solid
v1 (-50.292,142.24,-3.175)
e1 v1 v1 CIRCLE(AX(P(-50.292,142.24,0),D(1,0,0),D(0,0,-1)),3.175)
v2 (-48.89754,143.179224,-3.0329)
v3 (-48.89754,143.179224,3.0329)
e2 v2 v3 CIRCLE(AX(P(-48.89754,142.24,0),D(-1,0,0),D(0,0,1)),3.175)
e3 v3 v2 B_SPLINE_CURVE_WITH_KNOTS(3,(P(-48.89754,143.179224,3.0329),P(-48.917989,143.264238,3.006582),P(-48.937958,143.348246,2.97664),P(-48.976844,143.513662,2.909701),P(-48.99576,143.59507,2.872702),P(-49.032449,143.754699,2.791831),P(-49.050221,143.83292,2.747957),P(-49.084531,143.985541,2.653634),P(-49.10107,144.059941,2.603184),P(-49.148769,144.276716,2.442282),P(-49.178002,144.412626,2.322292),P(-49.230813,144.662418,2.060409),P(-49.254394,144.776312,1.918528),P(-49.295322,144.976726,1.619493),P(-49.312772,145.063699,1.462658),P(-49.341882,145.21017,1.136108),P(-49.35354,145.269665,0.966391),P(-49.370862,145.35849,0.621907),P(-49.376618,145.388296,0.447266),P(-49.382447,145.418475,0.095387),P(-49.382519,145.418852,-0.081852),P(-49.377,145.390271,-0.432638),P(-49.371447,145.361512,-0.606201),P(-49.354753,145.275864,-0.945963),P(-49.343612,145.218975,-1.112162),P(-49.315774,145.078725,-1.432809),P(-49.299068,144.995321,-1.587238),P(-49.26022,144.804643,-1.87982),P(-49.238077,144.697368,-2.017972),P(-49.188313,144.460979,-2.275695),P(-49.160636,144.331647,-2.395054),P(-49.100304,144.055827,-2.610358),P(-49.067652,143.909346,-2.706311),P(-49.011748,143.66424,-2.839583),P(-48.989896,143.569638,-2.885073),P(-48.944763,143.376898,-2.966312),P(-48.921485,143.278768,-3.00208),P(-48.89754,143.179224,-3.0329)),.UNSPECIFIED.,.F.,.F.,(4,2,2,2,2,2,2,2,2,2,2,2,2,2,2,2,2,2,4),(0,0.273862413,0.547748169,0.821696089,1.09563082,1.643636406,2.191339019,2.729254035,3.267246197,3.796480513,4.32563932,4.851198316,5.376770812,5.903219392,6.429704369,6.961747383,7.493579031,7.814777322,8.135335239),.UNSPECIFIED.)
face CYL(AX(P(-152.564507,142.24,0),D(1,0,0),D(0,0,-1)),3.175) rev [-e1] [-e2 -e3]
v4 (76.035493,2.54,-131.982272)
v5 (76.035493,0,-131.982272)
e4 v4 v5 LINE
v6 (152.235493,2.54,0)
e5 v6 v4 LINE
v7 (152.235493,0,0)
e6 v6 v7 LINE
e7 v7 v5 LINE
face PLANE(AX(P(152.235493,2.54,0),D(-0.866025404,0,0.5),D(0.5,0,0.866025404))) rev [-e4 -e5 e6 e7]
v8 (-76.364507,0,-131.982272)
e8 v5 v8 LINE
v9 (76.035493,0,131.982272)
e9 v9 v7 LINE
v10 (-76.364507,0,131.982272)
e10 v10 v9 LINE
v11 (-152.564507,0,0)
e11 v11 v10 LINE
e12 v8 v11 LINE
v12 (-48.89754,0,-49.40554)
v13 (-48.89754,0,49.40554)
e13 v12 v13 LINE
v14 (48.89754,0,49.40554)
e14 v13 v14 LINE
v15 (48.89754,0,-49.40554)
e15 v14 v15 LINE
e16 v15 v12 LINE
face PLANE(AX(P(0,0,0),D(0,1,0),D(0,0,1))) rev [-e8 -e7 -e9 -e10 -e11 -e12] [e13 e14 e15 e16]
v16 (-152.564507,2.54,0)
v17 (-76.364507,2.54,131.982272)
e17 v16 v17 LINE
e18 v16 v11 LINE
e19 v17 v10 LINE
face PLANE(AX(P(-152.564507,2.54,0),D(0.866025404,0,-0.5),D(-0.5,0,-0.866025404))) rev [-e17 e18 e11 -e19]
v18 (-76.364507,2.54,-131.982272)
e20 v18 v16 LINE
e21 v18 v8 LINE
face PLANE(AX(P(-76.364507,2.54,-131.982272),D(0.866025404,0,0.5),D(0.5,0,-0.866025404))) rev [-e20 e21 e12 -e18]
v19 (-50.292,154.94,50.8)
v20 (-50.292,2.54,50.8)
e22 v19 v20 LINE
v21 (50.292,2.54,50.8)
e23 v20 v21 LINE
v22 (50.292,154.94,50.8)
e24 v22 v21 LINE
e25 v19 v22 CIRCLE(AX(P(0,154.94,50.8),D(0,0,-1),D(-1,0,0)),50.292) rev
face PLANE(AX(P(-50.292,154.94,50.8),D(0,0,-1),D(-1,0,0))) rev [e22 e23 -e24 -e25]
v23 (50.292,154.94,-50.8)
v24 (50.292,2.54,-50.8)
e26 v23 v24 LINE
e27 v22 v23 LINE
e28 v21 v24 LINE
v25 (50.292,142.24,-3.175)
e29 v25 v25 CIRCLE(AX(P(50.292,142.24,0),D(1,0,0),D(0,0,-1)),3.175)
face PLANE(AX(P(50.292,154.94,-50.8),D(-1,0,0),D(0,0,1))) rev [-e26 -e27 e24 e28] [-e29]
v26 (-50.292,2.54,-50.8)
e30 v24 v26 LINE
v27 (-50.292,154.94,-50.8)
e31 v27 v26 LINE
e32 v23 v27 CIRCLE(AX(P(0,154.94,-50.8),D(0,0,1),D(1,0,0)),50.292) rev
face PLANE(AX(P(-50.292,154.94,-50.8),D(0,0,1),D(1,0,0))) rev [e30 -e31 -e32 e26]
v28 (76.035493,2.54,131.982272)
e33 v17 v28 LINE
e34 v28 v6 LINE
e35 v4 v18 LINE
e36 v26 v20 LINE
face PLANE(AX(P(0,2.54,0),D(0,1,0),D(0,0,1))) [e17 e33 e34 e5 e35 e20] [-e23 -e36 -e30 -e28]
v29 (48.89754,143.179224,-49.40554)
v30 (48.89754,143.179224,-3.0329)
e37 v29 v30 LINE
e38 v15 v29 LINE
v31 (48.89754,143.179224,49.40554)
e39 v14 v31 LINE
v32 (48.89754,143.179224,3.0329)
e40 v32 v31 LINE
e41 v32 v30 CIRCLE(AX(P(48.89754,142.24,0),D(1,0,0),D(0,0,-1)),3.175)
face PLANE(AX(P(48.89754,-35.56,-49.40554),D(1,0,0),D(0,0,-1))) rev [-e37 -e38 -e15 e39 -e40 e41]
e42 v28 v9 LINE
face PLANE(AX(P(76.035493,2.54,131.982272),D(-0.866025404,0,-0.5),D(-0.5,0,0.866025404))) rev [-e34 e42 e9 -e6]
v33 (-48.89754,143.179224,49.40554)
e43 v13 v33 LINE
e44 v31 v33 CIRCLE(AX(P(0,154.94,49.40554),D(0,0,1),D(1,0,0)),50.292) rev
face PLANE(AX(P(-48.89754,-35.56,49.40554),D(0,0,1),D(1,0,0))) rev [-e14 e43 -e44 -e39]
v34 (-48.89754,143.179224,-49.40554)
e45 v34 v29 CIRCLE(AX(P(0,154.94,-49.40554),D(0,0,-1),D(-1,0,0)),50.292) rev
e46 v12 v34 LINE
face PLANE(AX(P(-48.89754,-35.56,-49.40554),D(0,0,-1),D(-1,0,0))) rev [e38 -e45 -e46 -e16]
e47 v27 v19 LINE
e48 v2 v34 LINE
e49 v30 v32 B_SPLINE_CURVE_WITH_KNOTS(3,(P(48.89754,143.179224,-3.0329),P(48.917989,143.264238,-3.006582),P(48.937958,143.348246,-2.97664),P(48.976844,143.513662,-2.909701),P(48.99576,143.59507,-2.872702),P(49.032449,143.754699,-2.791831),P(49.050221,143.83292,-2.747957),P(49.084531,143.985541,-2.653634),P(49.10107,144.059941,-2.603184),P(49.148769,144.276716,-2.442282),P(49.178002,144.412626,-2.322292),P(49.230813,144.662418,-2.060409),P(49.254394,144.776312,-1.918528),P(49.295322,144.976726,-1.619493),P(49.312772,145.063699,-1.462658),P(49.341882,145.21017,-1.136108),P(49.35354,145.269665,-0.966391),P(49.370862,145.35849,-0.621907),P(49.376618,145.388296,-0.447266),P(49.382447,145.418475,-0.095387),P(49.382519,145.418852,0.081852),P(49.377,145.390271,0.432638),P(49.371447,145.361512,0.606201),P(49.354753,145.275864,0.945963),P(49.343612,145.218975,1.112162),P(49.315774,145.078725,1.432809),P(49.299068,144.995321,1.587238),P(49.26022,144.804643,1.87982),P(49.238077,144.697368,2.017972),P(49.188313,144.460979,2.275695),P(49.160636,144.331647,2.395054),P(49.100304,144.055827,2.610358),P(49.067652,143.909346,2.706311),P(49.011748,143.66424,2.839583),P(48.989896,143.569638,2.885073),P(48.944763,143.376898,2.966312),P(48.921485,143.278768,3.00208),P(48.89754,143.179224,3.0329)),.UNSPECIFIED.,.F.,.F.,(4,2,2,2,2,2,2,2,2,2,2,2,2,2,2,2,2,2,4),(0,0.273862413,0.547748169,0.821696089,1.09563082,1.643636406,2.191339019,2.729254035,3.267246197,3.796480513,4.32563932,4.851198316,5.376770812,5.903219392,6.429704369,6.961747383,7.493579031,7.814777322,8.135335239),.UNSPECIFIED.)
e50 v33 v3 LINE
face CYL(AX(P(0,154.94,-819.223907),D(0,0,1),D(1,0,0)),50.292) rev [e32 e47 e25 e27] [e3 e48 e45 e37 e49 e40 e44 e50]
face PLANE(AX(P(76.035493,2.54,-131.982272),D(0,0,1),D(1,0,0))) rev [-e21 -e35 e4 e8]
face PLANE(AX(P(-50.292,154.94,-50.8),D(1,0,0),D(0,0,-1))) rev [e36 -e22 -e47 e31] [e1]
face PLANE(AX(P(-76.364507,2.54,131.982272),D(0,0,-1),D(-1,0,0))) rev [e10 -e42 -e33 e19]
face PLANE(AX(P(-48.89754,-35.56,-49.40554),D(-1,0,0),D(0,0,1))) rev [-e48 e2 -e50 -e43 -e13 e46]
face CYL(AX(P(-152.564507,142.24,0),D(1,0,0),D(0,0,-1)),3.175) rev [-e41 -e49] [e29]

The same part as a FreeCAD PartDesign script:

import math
import FreeCAD as App
import Part
import Sketcher
from FreeCAD import Vector
Q = App.Units.Quantity

doc = App.newDocument("Part")
body = doc.addObject("PartDesign::Body", "Body")

# Sketch on XZ plane
sketch1 = doc.addObject("Sketcher::SketchObject", "Sketch")
body.addObject(sketch1)
sketch1.AttachmentSupport = (doc.XZ_Plane, [""])
sketch1.MapMode = "FlatFace"
sketch1.addGeometry([
    Part.LineSegment(Vector(76.035493, 131.982272, 0), Vector(152.235493, 0, 0)),  # 0
    Part.LineSegment(Vector(152.235493, 0, 0), Vector(76.035493, -131.982272, 0)),  # 1
    Part.LineSegment(Vector(76.035493, -131.982272, 0), Vector(-76.364507, -131.982272, 0)),  # 2
    Part.LineSegment(Vector(-76.364507, -131.982272, 0), Vector(-152.564507, 0, 0)),  # 3
    Part.LineSegment(Vector(-152.564507, 0, 0), Vector(-76.364507, 131.982272, 0)),  # 4
    Part.LineSegment(Vector(-76.364507, 131.982272, 0), Vector(76.035493, 131.982272, 0)),  # 5
], False)
sketch1.addConstraint([
    Sketcher.Constraint("Coincident", 0, 2, 1, 1),
    Sketcher.Constraint("Coincident", 1, 2, 2, 1),
    Sketcher.Constraint("Coincident", 2, 2, 3, 1),
    Sketcher.Constraint("Coincident", 3, 2, 4, 1),
    Sketcher.Constraint("Coincident", 4, 2, 5, 1),
    Sketcher.Constraint("Coincident", 5, 2, 0, 1),
    Sketcher.Constraint("Horizontal", 2),
    Sketcher.Constraint("Horizontal", 5),
    Sketcher.Constraint("Symmetric", 2, 2, 4, 2, -1),
    Sketcher.Constraint("PointOnObject", 0, 2, -1),
    Sketcher.Constraint("PointOnObject", 3, 2, -1),
    Sketcher.Constraint("Parallel", 0, 3),
    Sketcher.Constraint("Parallel", 1, 4),
    Sketcher.Constraint("DistanceX", 2, 2, 2, 1, Q("6 in")),
    Sketcher.Constraint("Distance", 0, Q("6 in")),
    Sketcher.Constraint("Angle", 0, Q("-60 deg")),
    Sketcher.Constraint("DistanceX", -1, 1, 0, 2, Q("152.235493 mm")),
])
pad1 = doc.addObject("PartDesign::Pad", "Pad")
body.addObject(pad1)
pad1.Profile = sketch1
pad1.Length = Q("0.1 in")
pad1.Reversed = True

# Sketch on XZ plane
sketch2 = doc.addObject("Sketcher::SketchObject", "Sketch001")
body.addObject(sketch2)
sketch2.AttachmentSupport = (doc.XZ_Plane, [""])
sketch2.MapMode = "FlatFace"
sketch2.AttachmentOffset = App.Placement(Vector(0, 0, -0.1 * 25.4), App.Rotation())
sketch2.addGeometry([
    Part.LineSegment(Vector(-50.292, -50.8, 0), Vector(-50.292, 50.8, 0)),
    Part.LineSegment(Vector(-50.292, 50.8, 0), Vector(50.292, 50.8, 0)),
    Part.LineSegment(Vector(50.292, 50.8, 0), Vector(50.292, -50.8, 0)),
    Part.LineSegment(Vector(50.292, -50.8, 0), Vector(-50.292, -50.8, 0)),
], False)
sketch2.addConstraint([
    Sketcher.Constraint("Coincident", 0, 2, 1, 1),
    Sketcher.Constraint("Coincident", 1, 2, 2, 1),
    Sketcher.Constraint("Coincident", 2, 2, 3, 1),
    Sketcher.Constraint("Coincident", 3, 2, 0, 1),
    Sketcher.Constraint("Vertical", 0),
    Sketcher.Constraint("Horizontal", 1),
    Sketcher.Constraint("Vertical", 2),
    Sketcher.Constraint("Horizontal", 3),
    Sketcher.Constraint("Symmetric", 0, 2, 2, 2, -1, 1),
    Sketcher.Constraint("DistanceY", 0, 1, 0, 2, Q("4 in")),
    Sketcher.Constraint("DistanceX", 1, 1, 1, 2, Q("3.96 in")),
])
pad2 = doc.addObject("PartDesign::Pad", "Pad001")
body.addObject(pad2)
pad2.Profile = sketch2
pad2.Length = Q("6 in")
pad2.Reversed = True

# Sketch on XZ plane
sketch3 = doc.addObject("Sketcher::SketchObject", "Sketch002")
body.addObject(sketch3)
sketch3.AttachmentSupport = (doc.XZ_Plane, [""])
sketch3.MapMode = "FlatFace"
sketch3.AttachmentOffset = App.Placement(Vector(0, 0, -6.1 * 25.4), App.Rotation())
sketch3.addGeometry([
    Part.LineSegment(Vector(-48.89754, -49.40554, 0), Vector(-48.89754, 49.40554, 0)),
    Part.LineSegment(Vector(-48.89754, 49.40554, 0), Vector(48.89754, 49.40554, 0)),
    Part.LineSegment(Vector(48.89754, 49.40554, 0), Vector(48.89754, -49.40554, 0)),
    Part.LineSegment(Vector(48.89754, -49.40554, 0), Vector(-48.89754, -49.40554, 0)),
], False)
sketch3.addConstraint([
    Sketcher.Constraint("Coincident", 0, 2, 1, 1),
    Sketcher.Constraint("Coincident", 1, 2, 2, 1),
    Sketcher.Constraint("Coincident", 2, 2, 3, 1),
    Sketcher.Constraint("Coincident", 3, 2, 0, 1),
    Sketcher.Constraint("Vertical", 0),
    Sketcher.Constraint("Horizontal", 1),
    Sketcher.Constraint("Vertical", 2),
    Sketcher.Constraint("Horizontal", 3),
    Sketcher.Constraint("Symmetric", 0, 2, 2, 2, -1, 1),
    Sketcher.Constraint("DistanceX", 1, 1, 1, 2, Q("3.8502 in")),
    Sketcher.Constraint("DistanceY", 0, 1, 0, 2, Q("3.8902 in")),
])
pocket1 = doc.addObject("PartDesign::Pocket", "Pocket")
body.addObject(pocket1)
pocket1.Profile = sketch3
pocket1.Length = Q("7.5 in")
pocket1.Reversed = True

# Sketch on YZ plane
sketch4 = doc.addObject("Sketcher::SketchObject", "Sketch003")
body.addObject(sketch4)
sketch4.AttachmentSupport = (doc.YZ_Plane, [""])
sketch4.MapMode = "FlatFace"
sketch4.AttachmentOffset = App.Placement(Vector(0, 0, 1.98 * 25.4), App.Rotation())
sketch4.addGeometry(Part.Circle(Vector(142.24, 0, 0), Vector(0, 0, 1), 3.175), False)
sketch4.addConstraint([
    Sketcher.Constraint("PointOnObject", 0, 3, -1),
    Sketcher.Constraint("Diameter", 0, Q("0.25 in")),
    Sketcher.Constraint("DistanceX", -1, 1, 0, 3, Q("5.6 in")),
])
pocket2 = doc.addObject("PartDesign::Pocket", "Pocket001")
body.addObject(pocket2)
pocket2.Profile = sketch4
pocket2.Type = "ThroughAll"

# Sketch on XY plane
sketch5 = doc.addObject("Sketcher::SketchObject", "Sketch004")
body.addObject(sketch5)
sketch5.AttachmentSupport = (doc.XY_Plane, [""])
sketch5.MapMode = "FlatFace"
sketch5.AttachmentOffset = App.Placement(Vector(0, 0, -2 * 25.4), App.Rotation())
sketch5.addGeometry([
    Part.ArcOfCircle(Part.Circle(Vector(0, 154.94, 0), Vector(0, 0, 1), 50.292), math.radians(180), math.radians(360)),
    Part.LineSegment(Vector(-50.292, 154.94, 0), Vector(-50.292, 1716.494104, 0)),
    Part.LineSegment(Vector(-50.292, 1716.494104, 0), Vector(50.292, 1716.494104, 0)),
    Part.LineSegment(Vector(50.292, 1716.494104, 0), Vector(50.292, 154.94, 0)),
], False)
sketch5.addConstraint([
    Sketcher.Constraint("Tangent", 0, 1, 1, 1),
    Sketcher.Constraint("Coincident", 1, 2, 2, 1),
    Sketcher.Constraint("Coincident", 2, 2, 3, 1),
    Sketcher.Constraint("Tangent", 3, 2, 0, 2),
    Sketcher.Constraint("Vertical", 1),
    Sketcher.Constraint("Horizontal", 2),
    Sketcher.Constraint("Vertical", 3),
    Sketcher.Constraint("PointOnObject", 0, 3, -2),
    Sketcher.Constraint("Radius", 0, Q("1.98 in")),
    Sketcher.Constraint("DistanceY", -1, 1, 0, 3, Q("6.1 in")),
    Sketcher.Constraint("DistanceY", 1, 1, 1, 2, Q("1561.554104 mm")),
])
pocket3 = doc.addObject("PartDesign::Pocket", "Pocket002")
body.addObject(pocket3)
pocket3.Profile = sketch5
pocket3.Type = "ThroughAll"
pocket3.Midplane = True

doc.recompute()
